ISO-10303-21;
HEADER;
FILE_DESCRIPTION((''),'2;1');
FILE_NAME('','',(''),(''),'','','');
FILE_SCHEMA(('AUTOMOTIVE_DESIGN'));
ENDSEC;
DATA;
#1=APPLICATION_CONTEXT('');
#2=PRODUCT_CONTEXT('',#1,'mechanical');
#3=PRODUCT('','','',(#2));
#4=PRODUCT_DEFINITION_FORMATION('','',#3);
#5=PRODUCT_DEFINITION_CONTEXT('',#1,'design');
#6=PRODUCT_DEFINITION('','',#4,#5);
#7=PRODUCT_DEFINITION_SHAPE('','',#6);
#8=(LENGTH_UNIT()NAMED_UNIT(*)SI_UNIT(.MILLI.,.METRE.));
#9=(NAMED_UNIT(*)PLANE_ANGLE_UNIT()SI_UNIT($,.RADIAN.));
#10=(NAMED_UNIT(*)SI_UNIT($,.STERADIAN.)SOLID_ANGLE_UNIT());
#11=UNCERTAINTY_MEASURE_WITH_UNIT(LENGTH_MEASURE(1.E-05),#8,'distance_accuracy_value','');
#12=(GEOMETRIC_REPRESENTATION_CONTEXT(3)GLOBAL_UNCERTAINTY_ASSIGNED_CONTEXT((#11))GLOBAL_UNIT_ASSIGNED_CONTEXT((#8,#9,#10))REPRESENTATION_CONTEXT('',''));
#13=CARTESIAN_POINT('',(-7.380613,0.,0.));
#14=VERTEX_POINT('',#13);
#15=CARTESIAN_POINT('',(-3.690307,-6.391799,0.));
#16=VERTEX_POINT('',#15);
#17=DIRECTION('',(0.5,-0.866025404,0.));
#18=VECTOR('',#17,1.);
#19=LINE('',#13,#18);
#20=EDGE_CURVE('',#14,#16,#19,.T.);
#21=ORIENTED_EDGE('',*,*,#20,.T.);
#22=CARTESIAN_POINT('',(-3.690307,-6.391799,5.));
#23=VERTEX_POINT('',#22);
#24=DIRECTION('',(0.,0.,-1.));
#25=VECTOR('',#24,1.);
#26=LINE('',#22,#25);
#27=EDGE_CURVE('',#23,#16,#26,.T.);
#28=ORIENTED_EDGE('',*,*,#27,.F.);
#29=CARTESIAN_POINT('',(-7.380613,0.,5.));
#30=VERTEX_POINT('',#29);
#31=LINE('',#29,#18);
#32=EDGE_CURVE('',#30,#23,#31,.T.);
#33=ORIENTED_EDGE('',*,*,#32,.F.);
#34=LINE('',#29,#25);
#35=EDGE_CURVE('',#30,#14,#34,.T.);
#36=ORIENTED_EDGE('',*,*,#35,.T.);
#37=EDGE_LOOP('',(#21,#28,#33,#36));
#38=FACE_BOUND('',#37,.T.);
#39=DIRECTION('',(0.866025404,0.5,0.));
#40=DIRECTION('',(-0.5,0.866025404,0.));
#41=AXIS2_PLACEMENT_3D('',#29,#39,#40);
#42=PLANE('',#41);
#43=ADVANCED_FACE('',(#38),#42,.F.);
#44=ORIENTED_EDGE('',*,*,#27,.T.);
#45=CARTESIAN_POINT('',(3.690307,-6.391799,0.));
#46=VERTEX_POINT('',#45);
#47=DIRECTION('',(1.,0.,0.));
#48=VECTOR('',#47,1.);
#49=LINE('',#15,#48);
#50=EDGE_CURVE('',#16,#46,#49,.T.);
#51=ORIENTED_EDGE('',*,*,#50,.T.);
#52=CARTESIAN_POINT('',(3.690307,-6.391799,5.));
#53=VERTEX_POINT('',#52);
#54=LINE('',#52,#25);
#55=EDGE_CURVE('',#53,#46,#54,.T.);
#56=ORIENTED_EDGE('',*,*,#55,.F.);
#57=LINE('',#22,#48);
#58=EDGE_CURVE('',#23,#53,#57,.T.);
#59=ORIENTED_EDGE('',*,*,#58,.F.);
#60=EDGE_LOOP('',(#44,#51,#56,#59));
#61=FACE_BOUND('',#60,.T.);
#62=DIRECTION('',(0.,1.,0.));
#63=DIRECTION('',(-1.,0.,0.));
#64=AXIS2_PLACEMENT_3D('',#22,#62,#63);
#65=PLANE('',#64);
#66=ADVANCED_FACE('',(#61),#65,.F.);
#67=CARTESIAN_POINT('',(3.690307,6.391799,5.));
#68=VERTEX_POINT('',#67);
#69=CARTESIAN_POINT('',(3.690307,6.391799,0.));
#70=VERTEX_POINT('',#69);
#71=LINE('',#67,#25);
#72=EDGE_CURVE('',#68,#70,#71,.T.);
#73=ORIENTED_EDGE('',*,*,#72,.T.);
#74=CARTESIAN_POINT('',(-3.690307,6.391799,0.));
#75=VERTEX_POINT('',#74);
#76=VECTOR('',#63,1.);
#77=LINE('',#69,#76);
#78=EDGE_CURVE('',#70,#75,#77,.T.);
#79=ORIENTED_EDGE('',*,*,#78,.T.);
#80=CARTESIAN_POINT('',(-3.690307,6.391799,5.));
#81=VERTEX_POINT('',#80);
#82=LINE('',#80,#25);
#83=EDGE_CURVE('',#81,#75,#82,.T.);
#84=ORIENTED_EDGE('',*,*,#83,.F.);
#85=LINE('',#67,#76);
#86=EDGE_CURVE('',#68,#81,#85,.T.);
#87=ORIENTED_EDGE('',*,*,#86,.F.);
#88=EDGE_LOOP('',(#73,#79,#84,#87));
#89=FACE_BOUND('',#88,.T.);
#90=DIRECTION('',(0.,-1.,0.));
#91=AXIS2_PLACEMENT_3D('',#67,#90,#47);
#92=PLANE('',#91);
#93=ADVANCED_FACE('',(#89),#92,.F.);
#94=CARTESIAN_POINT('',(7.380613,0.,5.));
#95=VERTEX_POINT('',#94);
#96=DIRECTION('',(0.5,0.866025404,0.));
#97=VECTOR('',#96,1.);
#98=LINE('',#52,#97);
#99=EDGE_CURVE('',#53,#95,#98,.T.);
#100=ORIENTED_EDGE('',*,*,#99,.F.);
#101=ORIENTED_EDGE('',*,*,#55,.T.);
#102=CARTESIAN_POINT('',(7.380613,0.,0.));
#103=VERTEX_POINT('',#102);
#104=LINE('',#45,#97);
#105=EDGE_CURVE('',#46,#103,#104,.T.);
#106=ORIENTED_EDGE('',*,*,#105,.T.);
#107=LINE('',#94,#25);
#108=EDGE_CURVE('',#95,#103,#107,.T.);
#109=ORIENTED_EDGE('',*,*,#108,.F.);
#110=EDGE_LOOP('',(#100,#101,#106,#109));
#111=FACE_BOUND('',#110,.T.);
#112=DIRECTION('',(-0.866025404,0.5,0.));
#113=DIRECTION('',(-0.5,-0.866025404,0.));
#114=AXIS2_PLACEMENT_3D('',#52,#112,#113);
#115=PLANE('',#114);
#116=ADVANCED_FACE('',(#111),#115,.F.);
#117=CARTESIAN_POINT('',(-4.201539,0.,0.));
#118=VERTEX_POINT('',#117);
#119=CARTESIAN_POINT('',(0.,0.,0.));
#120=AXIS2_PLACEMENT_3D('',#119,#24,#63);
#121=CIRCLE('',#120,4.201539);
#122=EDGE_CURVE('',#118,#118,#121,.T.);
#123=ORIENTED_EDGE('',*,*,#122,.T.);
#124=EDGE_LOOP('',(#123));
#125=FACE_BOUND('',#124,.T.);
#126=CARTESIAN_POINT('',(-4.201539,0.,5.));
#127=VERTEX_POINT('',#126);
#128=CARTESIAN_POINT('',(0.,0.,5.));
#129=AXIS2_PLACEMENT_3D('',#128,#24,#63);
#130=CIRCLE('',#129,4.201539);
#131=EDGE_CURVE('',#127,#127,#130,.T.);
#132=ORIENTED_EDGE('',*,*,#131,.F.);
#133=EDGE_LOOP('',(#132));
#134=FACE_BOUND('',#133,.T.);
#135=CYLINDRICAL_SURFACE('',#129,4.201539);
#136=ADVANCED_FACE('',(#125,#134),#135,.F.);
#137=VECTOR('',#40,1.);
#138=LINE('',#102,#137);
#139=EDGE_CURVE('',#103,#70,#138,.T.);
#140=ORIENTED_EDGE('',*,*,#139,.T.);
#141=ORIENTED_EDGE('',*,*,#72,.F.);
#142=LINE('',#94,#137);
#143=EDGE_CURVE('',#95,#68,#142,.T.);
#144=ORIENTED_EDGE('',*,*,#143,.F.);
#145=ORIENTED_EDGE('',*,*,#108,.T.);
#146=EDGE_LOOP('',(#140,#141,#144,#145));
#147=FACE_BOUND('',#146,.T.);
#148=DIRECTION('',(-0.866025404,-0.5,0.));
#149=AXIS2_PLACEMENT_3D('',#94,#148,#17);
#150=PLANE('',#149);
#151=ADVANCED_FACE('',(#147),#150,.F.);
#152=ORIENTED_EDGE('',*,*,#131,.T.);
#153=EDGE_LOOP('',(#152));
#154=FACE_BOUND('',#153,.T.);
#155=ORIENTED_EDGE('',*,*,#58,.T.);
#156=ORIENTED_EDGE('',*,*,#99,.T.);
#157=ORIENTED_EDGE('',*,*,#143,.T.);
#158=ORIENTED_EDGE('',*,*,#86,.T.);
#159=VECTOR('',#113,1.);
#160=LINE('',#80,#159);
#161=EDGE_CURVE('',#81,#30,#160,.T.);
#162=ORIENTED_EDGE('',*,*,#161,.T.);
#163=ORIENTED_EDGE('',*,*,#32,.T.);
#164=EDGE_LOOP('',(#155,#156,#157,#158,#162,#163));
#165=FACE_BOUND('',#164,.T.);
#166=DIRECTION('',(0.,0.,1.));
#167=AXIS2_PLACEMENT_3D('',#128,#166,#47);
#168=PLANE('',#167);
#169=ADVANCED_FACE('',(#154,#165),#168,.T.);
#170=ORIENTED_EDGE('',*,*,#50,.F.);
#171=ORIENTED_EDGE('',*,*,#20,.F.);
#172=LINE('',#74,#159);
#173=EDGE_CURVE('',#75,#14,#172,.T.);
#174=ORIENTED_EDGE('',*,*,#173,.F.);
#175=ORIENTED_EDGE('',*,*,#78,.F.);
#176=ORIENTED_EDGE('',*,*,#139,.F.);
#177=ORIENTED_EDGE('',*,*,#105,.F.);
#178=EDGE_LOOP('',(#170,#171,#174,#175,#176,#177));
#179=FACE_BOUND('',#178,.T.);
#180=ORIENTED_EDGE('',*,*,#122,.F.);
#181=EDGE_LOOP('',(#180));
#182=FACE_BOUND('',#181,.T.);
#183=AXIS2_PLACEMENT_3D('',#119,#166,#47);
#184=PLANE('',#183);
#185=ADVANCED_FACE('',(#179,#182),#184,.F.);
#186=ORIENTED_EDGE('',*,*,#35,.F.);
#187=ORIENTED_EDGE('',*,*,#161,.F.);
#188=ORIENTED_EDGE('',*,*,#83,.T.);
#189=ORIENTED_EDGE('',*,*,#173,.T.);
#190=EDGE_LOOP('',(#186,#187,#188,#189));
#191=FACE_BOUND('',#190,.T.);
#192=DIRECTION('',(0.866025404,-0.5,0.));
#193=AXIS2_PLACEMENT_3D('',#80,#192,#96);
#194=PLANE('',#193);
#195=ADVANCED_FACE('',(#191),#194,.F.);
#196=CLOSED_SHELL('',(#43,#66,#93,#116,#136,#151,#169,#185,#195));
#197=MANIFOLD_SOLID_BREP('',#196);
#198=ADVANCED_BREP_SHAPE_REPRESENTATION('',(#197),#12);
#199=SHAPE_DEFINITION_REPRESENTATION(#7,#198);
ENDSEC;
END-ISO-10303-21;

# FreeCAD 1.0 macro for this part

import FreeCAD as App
import Part
import Sketcher

V = App.Vector
Q = App.Units.Quantity


def add_polygon(sketch, points):
    """Adds a closed chain of lines whose ends are joined by coincident constraints."""
    first, n = sketch.GeometryCount, len(points)
    for a, b in zip(points, points[1:] + points[:1]):
        sketch.addGeometry(Part.LineSegment(App.Vector(*a, 0), App.Vector(*b, 0)), False)
    for i in range(n):
        sketch.addConstraint(Sketcher.Constraint("Coincident", first + i, 2, first + (i + 1) % n, 1))

doc = App.newDocument("Part")
params = doc.addObject("Spreadsheet::Sheet", "Params")
for row, (alias, value) in enumerate([
    ("pad1_length", "5 mm"),
], start=1):
    params.set(f"A{row}", alias)
    params.set(f"B{row}", "=" + value)
    params.setAlias(f"B{row}", alias)

body = doc.addObject("PartDesign::Body", "Body")

# Sketch on XY plane
sketch1 = doc.addObject("Sketcher::SketchObject", "Sketch")
body.addObject(sketch1)
sketch1.AttachmentSupport = (doc.XY_Plane, [""])
sketch1.MapMode = "FlatFace"
add_polygon(sketch1, [(7.380613, 0), (3.690307, 6.391799), (-3.690307, 6.391799), (-7.380613, 0), (-3.690307, -6.391799), (3.690307, -6.391799)])  # lines 0-5
sketch1.addConstraint(Sketcher.Constraint("Horizontal", 1))
sketch1.addConstraint(Sketcher.Constraint("Horizontal", 4))
sketch1.addConstraint(Sketcher.Constraint("Symmetric", 0, 2, 3, 2, -1, 1))
sketch1.addConstraint(Sketcher.Constraint("Symmetric", 2, 2, 5, 2, -1, 1))
sketch1.addConstraint(Sketcher.Constraint("PointOnObject", 2, 2, -1))
sketch1.addConstraint(Sketcher.Constraint("Parallel", 2, 5))
sketch1.addConstraint(Sketcher.Constraint("Vertical", 1, 2, 3, 2))
sketch1.addConstraint(Sketcher.Constraint("Angle", 0, Q("120 deg")))
sketch1.addConstraint(Sketcher.Constraint("DistanceY", -1, 1, 0, 2, 6.391799))
sketch1.addConstraint(Sketcher.Constraint("DistanceX", 1, 2, 1, 1, 7.380613))
pad1 = doc.addObject("PartDesign::Pad", "Pad")
body.addObject(pad1)
pad1.Profile = sketch1
pad1.setExpression("Length", "Params.pad1_length")

# Sketch on XY plane
sketch2 = doc.addObject("Sketcher::SketchObject", "Sketch001")
body.addObject(sketch2)
sketch2.AttachmentSupport = (doc.XY_Plane, [""])
sketch2.MapMode = "FlatFace"
sketch2.addGeometry(Part.Circle(V(0, 0, 0), V(0, 0, 1), 4.201539), False)
sketch2.addConstraint(Sketcher.Constraint("Coincident", 0, 3, -1, 1))
sketch2.addConstraint(Sketcher.Constraint("Diameter", 0, 8.403078))
pocket1 = doc.addObject("PartDesign::Pocket", "Pocket")
body.addObject(pocket1)
pocket1.Profile = sketch2
pocket1.Type = "ThroughAll"
pocket1.Reversed = True

doc.recompute()
